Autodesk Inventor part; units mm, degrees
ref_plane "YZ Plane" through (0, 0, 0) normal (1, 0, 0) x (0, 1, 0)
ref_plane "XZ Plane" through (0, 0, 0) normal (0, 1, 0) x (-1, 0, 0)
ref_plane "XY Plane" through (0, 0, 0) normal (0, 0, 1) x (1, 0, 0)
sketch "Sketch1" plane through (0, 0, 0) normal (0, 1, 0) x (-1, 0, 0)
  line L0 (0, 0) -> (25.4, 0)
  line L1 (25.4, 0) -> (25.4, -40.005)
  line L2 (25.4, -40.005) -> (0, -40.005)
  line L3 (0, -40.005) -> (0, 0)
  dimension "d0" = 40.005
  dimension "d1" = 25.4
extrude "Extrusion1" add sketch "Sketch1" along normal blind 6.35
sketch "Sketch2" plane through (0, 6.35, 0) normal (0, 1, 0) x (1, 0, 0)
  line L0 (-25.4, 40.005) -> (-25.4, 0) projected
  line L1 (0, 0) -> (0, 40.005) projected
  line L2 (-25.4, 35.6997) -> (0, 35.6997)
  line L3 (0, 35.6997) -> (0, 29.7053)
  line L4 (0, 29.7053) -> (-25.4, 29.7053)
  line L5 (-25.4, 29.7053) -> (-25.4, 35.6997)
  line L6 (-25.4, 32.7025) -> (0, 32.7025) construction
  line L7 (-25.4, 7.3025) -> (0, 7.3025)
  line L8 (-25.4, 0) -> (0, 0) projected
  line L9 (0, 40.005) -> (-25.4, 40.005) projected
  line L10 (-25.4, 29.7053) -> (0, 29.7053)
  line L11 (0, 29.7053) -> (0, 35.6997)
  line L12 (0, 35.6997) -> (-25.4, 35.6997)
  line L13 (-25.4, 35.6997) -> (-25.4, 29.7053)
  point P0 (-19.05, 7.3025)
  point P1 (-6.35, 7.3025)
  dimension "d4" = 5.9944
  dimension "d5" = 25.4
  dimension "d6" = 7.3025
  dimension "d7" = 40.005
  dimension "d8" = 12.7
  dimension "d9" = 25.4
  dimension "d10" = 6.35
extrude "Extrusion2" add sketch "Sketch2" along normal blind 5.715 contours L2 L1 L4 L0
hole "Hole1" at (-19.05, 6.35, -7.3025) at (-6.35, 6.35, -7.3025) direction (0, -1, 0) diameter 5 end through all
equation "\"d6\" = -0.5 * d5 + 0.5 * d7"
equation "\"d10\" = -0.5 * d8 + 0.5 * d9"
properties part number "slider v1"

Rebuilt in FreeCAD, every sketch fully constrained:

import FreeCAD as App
import Part
import Sketcher
from FreeCAD import Vector
Q = App.Units.Quantity

doc = App.newDocument("Part")
body = doc.addObject("PartDesign::Body", "Body")

# Sketch on XZ plane
sketch1 = body.newObject("Sketcher::SketchObject", "Sketch")
sketch1.AttachmentSupport = (doc.getObject("XZ_Plane"), [""])
sketch1.MapMode = "FlatFace"
sketch1.addGeometry([
    Part.LineSegment(Vector(-25, 0, 0), Vector(0, 0, 0)),
    Part.LineSegment(Vector(0, 0, 0), Vector(0, -40, 0)),
    Part.LineSegment(Vector(0, -40, 0), Vector(-25, -40, 0)),
    Part.LineSegment(Vector(-25, -40, 0), Vector(-25, 0, 0)),
], False)
sketch1.addConstraint([
    Sketcher.Constraint("Coincident", 0, 2, 1, 1),
    Sketcher.Constraint("Coincident", 1, 2, 2, 1),
    Sketcher.Constraint("Coincident", 2, 2, 3, 1),
    Sketcher.Constraint("Coincident", 3, 2, 0, 1),
    Sketcher.Constraint("Horizontal", 0),
    Sketcher.Constraint("Vertical", 1),
    Sketcher.Constraint("Horizontal", 2),
    Sketcher.Constraint("Vertical", 3),
    Sketcher.Constraint("Coincident", 0, 2, -1, 1),
    Sketcher.Constraint("DistanceX", 0, 1, 0, 2, Q("1 in")),
    Sketcher.Constraint("DistanceY", 1, 2, 1, 1, Q("1.575 in")),
])
pad1 = body.newObject("PartDesign::Pad", "Pad")
pad1.Profile = sketch1
pad1.Length = Q("0.25 in")
pad1.Reversed = True

# Sketch on XZ plane
sketch2 = body.newObject("Sketcher::SketchObject", "Sketch001")
sketch2.AttachmentSupport = (doc.getObject("XZ_Plane"), [""])
sketch2.MapMode = "FlatFace"
sketch2.AttachmentOffset = App.Placement(Vector(0, 0, -0.25 * 25.4), App.Rotation())
sketch2.addGeometry([
    Part.LineSegment(Vector(0, -36, 0), Vector(-25, -36, 0)),
    Part.LineSegment(Vector(-25, -36, 0), Vector(-25, -30, 0)),
    Part.LineSegment(Vector(-25, -30, 0), Vector(0, -30, 0)),
    Part.LineSegment(Vector(0, -30, 0), Vector(0, -36, 0)),
], False)
sketch2.addConstraint([
    Sketcher.Constraint("Coincident", 0, 2, 1, 1),
    Sketcher.Constraint("Coincident", 1, 2, 2, 1),
    Sketcher.Constraint("Coincident", 2, 2, 3, 1),
    Sketcher.Constraint("Coincident", 3, 2, 0, 1),
    Sketcher.Constraint("Horizontal", 0),
    Sketcher.Constraint("Vertical", 1),
    Sketcher.Constraint("Horizontal", 2),
    Sketcher.Constraint("Vertical", 3),
    Sketcher.Constraint("PointOnObject", 2, 2, -2),
    Sketcher.Constraint("DistanceX", 0, 2, 0, 1, Q("1 in")),
    Sketcher.Constraint("DistanceY", 1, 1, 1, 2, Q("0.236 in")),
    Sketcher.Constraint("DistanceY", 0, 2, -1, 1, Q("1.4055 in")),
])
pad2 = body.newObject("PartDesign::Pad", "Pad001")
pad2.Profile = sketch2
pad2.Length = Q("0.225 in")
pad2.Reversed = True

# Sketch on XZ plane
sketch3 = body.newObject("Sketcher::SketchObject", "Sketch002")
sketch3.AttachmentSupport = (doc.getObject("XZ_Plane"), [""])
sketch3.MapMode = "FlatFace"
sketch3.AttachmentOffset = App.Placement(Vector(0, 0, -0.25 * 25.4), App.Rotation())
sketch3.addGeometry([
    Part.Circle(Vector(-19.1, -7.3, 0), Vector(0, 0, 1), 2.5),
    Part.Circle(Vector(-6.3, -7.3, 0), Vector(0, 0, 1), 2.5),
], False)
sketch3.addConstraint([
    Sketcher.Constraint("Equal", 0, 1),
    Sketcher.Constraint("Horizontal", 0, 3, 1, 3),
    Sketcher.Constraint("DistanceX", 0, 3, 1, 3, Q("0.5 in")),
    Sketcher.Constraint("Diameter", 0, Q("5 mm")),
    Sketcher.Constraint("DistanceX", 0, 3, -1, 1, Q("0.75 in")),
    Sketcher.Constraint("DistanceY", 0, 3, -1, 1, Q("0.2875 in")),
])
doc.recompute()
hole = body.newObject("PartDesign::Hole", "Hole")
hole.Profile = sketch3
hole.ThreadType = "None"
hole.Diameter = 5
hole.DepthType = "ThroughAll"
hole.Reversed = True

doc.recompute()
